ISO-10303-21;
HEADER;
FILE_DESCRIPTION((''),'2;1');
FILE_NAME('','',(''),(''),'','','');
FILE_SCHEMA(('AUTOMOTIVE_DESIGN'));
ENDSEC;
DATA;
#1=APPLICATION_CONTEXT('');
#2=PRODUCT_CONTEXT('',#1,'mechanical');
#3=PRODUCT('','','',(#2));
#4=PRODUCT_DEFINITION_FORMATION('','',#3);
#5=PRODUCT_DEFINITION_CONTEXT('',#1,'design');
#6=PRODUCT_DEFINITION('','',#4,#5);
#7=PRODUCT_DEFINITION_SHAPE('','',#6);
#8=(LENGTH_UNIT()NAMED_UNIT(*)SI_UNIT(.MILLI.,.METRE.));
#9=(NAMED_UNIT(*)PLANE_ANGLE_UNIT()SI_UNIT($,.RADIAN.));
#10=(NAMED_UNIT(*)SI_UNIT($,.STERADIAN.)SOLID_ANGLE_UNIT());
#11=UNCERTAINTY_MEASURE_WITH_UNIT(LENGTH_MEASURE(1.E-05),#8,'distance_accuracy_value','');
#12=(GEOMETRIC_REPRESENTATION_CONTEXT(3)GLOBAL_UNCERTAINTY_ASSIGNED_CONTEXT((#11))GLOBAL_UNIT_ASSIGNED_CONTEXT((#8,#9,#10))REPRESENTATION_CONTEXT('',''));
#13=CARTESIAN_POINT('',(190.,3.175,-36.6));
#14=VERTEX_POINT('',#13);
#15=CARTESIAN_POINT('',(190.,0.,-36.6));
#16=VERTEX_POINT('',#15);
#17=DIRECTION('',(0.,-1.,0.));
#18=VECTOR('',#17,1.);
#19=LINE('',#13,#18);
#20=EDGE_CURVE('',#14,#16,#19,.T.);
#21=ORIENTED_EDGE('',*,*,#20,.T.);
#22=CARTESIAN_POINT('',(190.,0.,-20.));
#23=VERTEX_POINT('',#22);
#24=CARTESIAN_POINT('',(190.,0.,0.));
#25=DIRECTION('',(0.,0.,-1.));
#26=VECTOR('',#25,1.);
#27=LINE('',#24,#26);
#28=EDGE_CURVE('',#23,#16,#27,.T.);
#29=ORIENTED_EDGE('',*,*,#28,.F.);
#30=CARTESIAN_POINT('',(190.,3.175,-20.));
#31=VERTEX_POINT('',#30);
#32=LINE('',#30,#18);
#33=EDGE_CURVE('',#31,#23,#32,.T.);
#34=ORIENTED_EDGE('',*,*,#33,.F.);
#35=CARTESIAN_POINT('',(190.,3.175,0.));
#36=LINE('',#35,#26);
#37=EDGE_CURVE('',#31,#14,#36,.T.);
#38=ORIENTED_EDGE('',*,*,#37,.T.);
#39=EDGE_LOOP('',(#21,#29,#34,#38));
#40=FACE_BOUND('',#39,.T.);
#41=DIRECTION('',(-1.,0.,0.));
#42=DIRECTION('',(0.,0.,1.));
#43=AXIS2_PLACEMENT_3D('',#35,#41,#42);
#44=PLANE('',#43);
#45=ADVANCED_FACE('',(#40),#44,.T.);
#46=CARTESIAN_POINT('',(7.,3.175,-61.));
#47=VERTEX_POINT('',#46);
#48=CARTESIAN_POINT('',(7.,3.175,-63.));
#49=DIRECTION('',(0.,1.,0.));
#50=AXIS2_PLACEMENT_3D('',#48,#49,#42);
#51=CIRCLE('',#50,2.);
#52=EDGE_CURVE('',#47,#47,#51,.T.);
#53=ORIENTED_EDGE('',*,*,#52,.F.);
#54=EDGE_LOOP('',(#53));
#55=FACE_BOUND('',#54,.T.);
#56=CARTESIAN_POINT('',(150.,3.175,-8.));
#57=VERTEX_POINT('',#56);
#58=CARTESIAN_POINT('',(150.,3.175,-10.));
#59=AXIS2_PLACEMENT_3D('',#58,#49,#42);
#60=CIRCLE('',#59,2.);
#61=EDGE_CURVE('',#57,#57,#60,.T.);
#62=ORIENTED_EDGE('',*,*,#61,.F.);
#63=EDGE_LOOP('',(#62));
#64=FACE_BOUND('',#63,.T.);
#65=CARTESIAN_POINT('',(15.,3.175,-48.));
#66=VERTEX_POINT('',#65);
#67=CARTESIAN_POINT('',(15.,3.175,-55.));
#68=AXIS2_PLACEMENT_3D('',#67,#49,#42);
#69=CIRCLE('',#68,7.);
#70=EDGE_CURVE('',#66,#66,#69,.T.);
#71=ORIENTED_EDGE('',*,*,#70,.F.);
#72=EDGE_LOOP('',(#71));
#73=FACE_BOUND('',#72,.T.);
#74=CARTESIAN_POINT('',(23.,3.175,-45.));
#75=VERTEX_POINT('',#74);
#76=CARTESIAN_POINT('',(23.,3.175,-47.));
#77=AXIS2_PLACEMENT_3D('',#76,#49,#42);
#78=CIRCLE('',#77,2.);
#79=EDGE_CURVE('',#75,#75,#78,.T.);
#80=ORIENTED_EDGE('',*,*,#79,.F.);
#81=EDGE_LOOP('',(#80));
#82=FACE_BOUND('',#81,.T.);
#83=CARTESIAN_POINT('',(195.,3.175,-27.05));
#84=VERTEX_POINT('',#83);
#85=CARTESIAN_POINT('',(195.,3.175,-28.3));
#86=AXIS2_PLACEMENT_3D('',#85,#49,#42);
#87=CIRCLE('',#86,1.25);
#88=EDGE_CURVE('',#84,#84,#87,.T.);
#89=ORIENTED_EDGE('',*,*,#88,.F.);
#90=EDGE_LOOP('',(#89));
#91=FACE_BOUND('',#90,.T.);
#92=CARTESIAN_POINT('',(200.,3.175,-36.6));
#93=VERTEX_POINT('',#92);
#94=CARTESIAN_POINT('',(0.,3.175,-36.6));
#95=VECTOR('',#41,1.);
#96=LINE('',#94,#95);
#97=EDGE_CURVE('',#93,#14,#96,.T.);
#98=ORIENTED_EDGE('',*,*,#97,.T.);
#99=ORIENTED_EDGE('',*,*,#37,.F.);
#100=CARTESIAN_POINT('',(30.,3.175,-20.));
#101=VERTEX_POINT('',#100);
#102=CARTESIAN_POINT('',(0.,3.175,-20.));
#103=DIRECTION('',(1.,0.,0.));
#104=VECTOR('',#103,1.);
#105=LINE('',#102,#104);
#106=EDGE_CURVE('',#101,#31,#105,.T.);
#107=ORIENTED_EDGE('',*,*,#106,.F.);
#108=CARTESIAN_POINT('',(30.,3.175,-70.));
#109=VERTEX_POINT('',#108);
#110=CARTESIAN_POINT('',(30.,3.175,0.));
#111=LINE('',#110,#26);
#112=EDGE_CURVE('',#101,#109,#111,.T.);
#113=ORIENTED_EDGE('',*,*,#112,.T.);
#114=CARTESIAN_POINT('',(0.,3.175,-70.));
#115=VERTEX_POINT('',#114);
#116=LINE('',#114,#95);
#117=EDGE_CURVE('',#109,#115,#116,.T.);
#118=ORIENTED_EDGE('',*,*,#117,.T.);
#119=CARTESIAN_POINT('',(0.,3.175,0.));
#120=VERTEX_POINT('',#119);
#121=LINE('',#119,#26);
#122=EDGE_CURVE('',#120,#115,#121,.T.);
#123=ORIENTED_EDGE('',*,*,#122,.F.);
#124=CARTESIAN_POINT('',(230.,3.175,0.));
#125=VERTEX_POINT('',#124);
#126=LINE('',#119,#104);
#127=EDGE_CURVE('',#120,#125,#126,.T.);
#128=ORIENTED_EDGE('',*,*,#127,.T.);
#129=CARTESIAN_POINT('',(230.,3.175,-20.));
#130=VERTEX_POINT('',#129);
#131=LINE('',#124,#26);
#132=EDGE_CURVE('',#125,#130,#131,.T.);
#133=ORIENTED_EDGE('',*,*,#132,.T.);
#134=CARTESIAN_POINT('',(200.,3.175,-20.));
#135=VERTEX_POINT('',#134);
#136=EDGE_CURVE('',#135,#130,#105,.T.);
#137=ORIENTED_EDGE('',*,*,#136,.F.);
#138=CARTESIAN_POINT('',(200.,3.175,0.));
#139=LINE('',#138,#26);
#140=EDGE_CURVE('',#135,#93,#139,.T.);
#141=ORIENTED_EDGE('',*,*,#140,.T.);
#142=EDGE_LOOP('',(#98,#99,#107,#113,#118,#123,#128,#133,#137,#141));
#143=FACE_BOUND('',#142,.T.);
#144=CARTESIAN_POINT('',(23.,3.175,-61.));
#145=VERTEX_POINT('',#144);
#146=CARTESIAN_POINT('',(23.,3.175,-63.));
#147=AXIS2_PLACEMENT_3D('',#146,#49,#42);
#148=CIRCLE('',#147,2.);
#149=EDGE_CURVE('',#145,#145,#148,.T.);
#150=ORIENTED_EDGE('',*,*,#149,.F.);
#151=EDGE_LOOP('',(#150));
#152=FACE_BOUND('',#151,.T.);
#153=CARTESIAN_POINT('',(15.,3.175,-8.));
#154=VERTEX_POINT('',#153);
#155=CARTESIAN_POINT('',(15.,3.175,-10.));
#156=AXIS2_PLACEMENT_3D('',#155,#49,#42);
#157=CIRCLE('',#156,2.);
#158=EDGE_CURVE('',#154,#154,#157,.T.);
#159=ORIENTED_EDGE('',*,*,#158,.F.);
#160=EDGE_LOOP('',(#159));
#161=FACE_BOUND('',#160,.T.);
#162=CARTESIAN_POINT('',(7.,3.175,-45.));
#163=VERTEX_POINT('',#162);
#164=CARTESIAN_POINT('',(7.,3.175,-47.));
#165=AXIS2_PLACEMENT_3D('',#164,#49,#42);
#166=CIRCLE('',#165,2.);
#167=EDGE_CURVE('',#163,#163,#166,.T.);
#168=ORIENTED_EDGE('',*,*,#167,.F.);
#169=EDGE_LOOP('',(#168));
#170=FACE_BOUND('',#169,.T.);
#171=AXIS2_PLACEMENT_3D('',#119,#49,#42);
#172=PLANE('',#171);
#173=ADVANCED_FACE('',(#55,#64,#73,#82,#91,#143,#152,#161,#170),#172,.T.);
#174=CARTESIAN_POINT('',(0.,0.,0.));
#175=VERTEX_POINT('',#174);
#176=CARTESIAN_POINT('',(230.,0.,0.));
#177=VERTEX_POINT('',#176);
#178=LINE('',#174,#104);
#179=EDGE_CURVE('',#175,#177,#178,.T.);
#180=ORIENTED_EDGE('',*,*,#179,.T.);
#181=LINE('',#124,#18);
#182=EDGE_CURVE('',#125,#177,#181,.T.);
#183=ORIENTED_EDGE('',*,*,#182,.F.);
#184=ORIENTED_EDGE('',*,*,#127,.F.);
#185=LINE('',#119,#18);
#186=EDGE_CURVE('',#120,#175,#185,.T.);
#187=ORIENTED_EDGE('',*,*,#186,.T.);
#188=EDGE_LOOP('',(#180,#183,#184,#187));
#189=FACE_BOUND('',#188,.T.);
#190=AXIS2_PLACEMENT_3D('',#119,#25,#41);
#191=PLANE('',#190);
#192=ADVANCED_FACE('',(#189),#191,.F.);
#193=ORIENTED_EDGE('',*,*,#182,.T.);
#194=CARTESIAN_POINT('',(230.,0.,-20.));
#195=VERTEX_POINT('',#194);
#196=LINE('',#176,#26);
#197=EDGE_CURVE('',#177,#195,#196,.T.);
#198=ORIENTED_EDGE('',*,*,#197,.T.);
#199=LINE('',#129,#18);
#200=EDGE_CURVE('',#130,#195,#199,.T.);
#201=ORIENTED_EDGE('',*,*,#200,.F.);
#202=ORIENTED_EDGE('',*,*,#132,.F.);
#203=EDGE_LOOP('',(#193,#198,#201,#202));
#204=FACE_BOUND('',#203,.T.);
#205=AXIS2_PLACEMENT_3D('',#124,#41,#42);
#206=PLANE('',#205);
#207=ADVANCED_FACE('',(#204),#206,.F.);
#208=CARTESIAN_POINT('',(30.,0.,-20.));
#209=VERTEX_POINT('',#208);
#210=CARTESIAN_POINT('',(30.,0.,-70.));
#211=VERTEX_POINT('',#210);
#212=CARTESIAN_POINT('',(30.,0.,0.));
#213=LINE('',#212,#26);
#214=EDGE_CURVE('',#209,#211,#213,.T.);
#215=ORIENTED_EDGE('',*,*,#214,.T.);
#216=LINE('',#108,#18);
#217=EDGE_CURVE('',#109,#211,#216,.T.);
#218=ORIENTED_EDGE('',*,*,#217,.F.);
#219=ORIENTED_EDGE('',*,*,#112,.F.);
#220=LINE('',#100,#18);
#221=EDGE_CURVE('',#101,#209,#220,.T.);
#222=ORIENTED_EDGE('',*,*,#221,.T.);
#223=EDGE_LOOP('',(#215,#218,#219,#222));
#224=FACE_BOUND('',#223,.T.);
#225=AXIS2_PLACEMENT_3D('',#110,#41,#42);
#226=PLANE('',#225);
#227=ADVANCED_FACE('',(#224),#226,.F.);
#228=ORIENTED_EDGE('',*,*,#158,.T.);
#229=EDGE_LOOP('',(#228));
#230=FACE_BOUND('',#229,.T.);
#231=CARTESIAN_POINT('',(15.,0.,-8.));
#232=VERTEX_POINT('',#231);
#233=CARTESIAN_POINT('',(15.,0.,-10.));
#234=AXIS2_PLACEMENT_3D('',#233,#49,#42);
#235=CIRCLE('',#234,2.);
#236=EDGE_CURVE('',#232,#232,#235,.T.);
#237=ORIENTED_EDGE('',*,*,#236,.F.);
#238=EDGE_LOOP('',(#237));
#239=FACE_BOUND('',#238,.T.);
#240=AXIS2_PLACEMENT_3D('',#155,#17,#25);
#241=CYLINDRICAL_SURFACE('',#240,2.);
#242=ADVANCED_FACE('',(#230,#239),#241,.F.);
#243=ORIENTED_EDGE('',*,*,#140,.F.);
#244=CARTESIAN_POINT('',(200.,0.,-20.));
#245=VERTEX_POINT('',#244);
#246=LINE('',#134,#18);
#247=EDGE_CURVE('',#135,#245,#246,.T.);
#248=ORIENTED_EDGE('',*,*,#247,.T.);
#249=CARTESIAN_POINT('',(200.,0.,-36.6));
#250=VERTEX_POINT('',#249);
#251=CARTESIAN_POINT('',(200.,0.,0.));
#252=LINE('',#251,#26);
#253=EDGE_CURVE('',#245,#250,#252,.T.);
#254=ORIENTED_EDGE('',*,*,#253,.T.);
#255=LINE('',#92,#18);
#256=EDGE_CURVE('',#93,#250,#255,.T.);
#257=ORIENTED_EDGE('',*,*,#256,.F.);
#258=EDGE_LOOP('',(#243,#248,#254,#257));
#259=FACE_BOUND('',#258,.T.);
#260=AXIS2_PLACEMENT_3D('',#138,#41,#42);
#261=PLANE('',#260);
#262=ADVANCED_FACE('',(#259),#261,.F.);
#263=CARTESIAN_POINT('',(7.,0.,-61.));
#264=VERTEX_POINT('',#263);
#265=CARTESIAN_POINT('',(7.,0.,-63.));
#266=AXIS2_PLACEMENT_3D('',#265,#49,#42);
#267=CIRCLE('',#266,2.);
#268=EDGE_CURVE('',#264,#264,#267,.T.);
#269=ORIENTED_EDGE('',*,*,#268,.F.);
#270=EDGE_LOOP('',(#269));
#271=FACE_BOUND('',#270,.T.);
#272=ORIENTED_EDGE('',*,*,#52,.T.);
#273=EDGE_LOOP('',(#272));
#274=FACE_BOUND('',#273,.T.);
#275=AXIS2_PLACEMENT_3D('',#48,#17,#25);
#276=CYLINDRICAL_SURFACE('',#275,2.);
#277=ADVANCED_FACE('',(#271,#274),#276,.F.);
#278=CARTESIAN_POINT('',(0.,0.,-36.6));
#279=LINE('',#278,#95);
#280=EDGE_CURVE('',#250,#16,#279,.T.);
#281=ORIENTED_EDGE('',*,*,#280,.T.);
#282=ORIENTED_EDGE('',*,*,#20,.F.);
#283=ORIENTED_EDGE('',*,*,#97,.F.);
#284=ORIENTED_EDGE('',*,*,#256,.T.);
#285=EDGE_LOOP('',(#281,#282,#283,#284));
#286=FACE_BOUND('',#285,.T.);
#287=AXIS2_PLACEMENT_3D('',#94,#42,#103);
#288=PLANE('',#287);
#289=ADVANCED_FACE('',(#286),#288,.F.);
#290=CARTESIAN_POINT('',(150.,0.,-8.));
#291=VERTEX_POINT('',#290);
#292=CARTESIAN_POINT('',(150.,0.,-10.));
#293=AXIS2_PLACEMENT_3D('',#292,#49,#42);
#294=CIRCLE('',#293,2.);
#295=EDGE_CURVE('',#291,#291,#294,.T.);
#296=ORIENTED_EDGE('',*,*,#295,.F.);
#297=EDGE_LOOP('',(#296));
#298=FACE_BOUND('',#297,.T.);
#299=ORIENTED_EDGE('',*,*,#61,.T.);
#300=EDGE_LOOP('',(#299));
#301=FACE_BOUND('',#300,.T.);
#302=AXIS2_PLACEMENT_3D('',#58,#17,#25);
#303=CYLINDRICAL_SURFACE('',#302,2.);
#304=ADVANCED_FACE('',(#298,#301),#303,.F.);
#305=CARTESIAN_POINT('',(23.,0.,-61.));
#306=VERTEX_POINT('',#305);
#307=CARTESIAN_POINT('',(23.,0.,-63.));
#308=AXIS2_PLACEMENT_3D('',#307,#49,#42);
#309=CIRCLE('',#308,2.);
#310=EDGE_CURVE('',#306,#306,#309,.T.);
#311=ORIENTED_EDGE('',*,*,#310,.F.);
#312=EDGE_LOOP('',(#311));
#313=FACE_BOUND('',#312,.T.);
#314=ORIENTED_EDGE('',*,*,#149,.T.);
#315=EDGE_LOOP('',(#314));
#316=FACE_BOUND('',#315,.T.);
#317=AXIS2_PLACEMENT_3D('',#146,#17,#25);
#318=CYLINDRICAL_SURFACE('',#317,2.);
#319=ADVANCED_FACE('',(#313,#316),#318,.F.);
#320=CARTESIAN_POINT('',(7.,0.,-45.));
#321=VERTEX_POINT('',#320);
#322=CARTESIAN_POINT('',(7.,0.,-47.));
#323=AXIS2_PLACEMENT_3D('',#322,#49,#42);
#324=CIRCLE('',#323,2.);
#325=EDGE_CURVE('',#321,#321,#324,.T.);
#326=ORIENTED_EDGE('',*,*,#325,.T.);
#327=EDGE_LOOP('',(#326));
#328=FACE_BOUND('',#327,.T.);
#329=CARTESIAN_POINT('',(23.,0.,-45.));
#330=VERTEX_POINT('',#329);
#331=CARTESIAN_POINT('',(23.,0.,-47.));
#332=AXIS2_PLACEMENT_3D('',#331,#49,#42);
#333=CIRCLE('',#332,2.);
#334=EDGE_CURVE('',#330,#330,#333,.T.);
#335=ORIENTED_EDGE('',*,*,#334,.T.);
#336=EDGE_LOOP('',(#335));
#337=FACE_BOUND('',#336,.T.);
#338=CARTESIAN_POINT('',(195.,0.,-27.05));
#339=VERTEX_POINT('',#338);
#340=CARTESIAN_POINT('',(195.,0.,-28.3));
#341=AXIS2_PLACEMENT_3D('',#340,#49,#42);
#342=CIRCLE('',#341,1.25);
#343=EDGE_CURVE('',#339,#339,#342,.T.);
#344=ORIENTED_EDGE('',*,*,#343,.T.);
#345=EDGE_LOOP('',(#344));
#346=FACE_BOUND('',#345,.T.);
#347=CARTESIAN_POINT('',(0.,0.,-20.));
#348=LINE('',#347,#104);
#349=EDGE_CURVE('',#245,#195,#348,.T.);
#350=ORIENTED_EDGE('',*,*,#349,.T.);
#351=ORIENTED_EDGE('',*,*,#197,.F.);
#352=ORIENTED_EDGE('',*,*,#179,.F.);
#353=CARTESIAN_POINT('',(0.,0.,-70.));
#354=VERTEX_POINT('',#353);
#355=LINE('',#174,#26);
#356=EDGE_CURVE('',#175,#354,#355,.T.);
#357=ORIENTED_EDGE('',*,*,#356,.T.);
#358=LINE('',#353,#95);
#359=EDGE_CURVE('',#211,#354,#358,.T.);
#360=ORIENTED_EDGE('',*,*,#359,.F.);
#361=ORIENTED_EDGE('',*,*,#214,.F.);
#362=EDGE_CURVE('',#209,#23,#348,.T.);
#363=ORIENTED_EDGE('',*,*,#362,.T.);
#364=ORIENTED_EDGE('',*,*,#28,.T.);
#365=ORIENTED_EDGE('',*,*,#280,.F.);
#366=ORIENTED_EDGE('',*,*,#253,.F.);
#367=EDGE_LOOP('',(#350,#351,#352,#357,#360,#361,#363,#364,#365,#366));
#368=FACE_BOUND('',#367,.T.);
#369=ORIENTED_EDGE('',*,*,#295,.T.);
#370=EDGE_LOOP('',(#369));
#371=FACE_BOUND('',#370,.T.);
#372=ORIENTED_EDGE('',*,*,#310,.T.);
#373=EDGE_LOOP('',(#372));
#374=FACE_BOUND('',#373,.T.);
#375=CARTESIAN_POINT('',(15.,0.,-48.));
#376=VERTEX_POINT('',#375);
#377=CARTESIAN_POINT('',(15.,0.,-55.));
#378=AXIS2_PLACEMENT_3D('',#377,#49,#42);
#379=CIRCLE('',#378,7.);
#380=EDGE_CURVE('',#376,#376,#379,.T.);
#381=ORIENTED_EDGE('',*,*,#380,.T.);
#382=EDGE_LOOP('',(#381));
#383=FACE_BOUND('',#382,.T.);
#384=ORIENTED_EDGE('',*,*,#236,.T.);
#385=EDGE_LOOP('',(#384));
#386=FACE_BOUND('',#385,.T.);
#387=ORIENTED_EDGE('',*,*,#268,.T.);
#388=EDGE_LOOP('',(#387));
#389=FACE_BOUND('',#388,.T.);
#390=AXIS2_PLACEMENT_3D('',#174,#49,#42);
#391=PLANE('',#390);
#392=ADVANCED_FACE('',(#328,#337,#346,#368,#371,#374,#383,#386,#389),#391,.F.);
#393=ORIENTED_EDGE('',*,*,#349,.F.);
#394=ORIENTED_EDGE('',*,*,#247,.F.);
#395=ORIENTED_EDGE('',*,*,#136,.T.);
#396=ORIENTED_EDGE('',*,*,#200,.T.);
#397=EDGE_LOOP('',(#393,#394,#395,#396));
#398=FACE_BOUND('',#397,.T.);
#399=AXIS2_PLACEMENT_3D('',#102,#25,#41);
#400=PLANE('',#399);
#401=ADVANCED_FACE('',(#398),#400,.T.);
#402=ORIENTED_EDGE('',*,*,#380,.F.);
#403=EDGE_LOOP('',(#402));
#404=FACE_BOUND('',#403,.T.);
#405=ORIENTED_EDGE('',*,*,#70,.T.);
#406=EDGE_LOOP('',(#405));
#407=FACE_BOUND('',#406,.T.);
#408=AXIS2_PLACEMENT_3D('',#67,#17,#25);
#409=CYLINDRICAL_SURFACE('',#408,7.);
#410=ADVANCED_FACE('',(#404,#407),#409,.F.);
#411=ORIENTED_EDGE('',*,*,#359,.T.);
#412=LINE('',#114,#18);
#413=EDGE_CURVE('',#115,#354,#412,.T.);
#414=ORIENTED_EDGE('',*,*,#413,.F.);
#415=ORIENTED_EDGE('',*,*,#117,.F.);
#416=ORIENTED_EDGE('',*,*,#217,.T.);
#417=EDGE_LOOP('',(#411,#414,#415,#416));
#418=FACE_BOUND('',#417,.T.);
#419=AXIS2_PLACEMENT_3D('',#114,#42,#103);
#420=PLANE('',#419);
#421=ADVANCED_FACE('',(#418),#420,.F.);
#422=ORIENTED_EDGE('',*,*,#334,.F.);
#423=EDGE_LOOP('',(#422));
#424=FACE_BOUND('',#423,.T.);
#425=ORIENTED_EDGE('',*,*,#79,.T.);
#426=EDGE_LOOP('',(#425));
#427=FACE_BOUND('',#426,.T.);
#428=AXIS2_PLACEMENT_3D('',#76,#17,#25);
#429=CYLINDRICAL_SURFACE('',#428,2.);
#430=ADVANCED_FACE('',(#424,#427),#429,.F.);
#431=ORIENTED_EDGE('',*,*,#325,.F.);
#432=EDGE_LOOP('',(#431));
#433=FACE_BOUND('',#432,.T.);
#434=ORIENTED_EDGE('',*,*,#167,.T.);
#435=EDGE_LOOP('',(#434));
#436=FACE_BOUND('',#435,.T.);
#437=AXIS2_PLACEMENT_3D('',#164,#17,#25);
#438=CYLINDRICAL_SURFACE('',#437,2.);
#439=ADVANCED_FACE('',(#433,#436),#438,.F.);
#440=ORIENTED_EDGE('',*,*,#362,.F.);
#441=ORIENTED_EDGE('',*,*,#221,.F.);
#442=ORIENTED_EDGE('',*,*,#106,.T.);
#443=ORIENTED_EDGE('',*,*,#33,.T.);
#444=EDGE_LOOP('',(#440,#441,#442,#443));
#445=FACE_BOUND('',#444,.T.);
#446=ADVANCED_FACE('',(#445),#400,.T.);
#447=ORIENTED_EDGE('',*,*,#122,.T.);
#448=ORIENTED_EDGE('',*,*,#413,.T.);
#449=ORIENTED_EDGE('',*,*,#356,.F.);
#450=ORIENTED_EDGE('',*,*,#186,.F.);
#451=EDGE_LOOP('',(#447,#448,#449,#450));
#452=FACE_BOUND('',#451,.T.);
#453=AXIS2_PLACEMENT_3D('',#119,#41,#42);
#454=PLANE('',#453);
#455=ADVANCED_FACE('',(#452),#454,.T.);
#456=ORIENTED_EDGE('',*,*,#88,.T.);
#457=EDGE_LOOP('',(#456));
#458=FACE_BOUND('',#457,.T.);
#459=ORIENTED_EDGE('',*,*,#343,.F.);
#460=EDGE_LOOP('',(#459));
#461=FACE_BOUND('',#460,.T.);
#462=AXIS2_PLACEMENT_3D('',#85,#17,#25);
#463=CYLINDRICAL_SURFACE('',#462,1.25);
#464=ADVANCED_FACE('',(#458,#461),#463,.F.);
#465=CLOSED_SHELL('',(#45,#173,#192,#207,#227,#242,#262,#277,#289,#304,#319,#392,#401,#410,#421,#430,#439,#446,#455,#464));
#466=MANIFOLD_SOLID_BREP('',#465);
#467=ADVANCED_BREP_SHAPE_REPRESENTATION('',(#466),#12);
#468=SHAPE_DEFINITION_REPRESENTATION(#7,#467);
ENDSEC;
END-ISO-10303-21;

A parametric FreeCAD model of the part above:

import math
import FreeCAD as App
import Part
import Sketcher


def add_polygon(sketch, points):
    """Adds a closed chain of lines whose ends are joined by coincident constraints."""
    first, n = sketch.GeometryCount, len(points)
    for a, b in zip(points, points[1:] + points[:1]):
        sketch.addGeometry(Part.LineSegment(App.Vector(*a, 0), App.Vector(*b, 0)), False)
    for i in range(n):
        sketch.addConstraint(Sketcher.Constraint("Coincident", first + i, 2, first + (i + 1) % n, 1))

doc = App.newDocument("Part")
body = doc.addObject("PartDesign::Body", "Body")

sketch1 = doc.addObject("Sketcher::SketchObject", "Sketch")
body.addObject(sketch1)
sketch1.AttachmentSupport = (doc.XZ_Plane, [""])
sketch1.MapMode = "FlatFace"
add_polygon(sketch1, [(0, 0), (230, 0), (230, -20), (200, -20), (200, -36.6), (190, -36.6), (190, -20), (30, -20), (30, -70), (0, -70)])
sketch1.addGeometry(Part.Circle(App.Vector(15, -10, 0), App.Vector(0, 0, 1), 2), False)
sketch1.addGeometry(Part.Circle(App.Vector(150, -10, 0), App.Vector(0, 0, 1), 2), False)
sketch1.addGeometry(Part.Circle(App.Vector(195, -28.3, 0), App.Vector(0, 0, 1), 1.2), False)
sketch1.addGeometry(Part.Circle(App.Vector(7, -47, 0), App.Vector(0, 0, 1), 2), False)
sketch1.addGeometry(Part.Circle(App.Vector(23, -47, 0), App.Vector(0, 0, 1), 2), False)
sketch1.addGeometry(Part.ArcOfCircle(Part.Circle(App.Vector(15, -55, 0), App.Vector(0, 0, 1), 7), math.radians(-90), math.radians(225)), False)
sketch1.addGeometry(Part.ArcOfCircle(Part.Circle(App.Vector(15, -55, 0), App.Vector(0, 0, 1), 7), math.radians(-135), math.radians(-90)), False)
sketch1.addGeometry(Part.Circle(App.Vector(7, -63, 0), App.Vector(0, 0, 1), 2), False)
sketch1.addGeometry(Part.Circle(App.Vector(23, -63, 0), App.Vector(0, 0, 1), 2), False)
sketch1.addConstraint(Sketcher.Constraint("Tangent", 15, 1, 16, 2))
sketch1.addConstraint(Sketcher.Constraint("Coincident", 16, 1, 15, 2))
sketch1.addConstraint(Sketcher.Constraint("Horizontal", 0))
sketch1.addConstraint(Sketcher.Constraint("Vertical", 1))
sketch1.addConstraint(Sketcher.Constraint("Horizontal", 2))
sketch1.addConstraint(Sketcher.Constraint("Vertical", 3))
sketch1.addConstraint(Sketcher.Constraint("Horizontal", 4))
sketch1.addConstraint(Sketcher.Constraint("Vertical", 5))
sketch1.addConstraint(Sketcher.Constraint("Horizontal", 6))
sketch1.addConstraint(Sketcher.Constraint("Vertical", 7))
sketch1.addConstraint(Sketcher.Constraint("Horizontal", 8))
sketch1.addConstraint(Sketcher.Constraint("Vertical", 9))
sketch1.addConstraint(Sketcher.Constraint("Coincident", 9, 2, -1, 1))
sketch1.addConstraint(Sketcher.Constraint("Equal", 10, 11))
sketch1.addConstraint(Sketcher.Constraint("Equal", 11, 13))
sketch1.addConstraint(Sketcher.Constraint("Equal", 13, 14))
sketch1.addConstraint(Sketcher.Constraint("Equal", 14, 17))
sketch1.addConstraint(Sketcher.Constraint("Equal", 17, 18))
sketch1.addConstraint(Sketcher.Constraint("Horizontal", 10, 3, 11, 3))
sketch1.addConstraint(Sketcher.Constraint("Horizontal", 13, 3, 14, 3))
sketch1.addConstraint(Sketcher.Constraint("Horizontal", 17, 3, 18, 3))
sketch1.addConstraint(Sketcher.Constraint("Horizontal", 2, 2, 5, 2))
sketch1.addConstraint(Sketcher.Constraint("Vertical", 10, 3, 15, 3))
sketch1.addConstraint(Sketcher.Constraint("Vertical", 13, 3, 17, 3))
sketch1.addConstraint(Sketcher.Constraint("Vertical", 14, 3, 18, 3))
sketch1.addConstraint(Sketcher.Constraint("Vertical", 16, 3, 15, 1))
sketch1.addConstraint(Sketcher.Constraint("Equal", 2, 8))
sketch1.addConstraint(Sketcher.Constraint("Diameter", 10, 4.0))
sketch1.addConstraint(Sketcher.Constraint("Radius", 15, 7.0))
sketch1.addConstraint(Sketcher.Constraint("Diameter", 12, 2.5))
sketch1.addConstraint(Sketcher.Constraint("DistanceX", 0, 1, 0, 2, 230.0))
sketch1.addConstraint(Sketcher.Constraint("DistanceX", 2, 2, 2, 1, 30.0))
sketch1.addConstraint(Sketcher.Constraint("DistanceX", 4, 2, 4, 1, 10.0))
sketch1.addConstraint(Sketcher.Constraint("DistanceY", 1, 2, 1, 1, 20.0))
sketch1.addConstraint(Sketcher.Constraint("DistanceY", 7, 2, 7, 1, 50.0))
sketch1.addConstraint(Sketcher.Constraint("DistanceY", 3, 2, 3, 1, 16.6))
sketch1.addConstraint(Sketcher.Constraint("DistanceX", -1, 1, 10, 3, 15.0))
sketch1.addConstraint(Sketcher.Constraint("DistanceY", 10, 3, -1, 1, 10.0))
sketch1.addConstraint(Sketcher.Constraint("DistanceX", -1, 1, 11, 3, 150.0))
sketch1.addConstraint(Sketcher.Constraint("DistanceX", -1, 1, 12, 3, 195.0))
sketch1.addConstraint(Sketcher.Constraint("DistanceX", -1, 1, 13, 3, 7.0))
sketch1.addConstraint(Sketcher.Constraint("DistanceY", 13, 3, -1, 1, 47.0))
sketch1.addConstraint(Sketcher.Constraint("DistanceX", -1, 1, 14, 3, 23.0))
sketch1.addConstraint(Sketcher.Constraint("DistanceY", 15, 3, -1, 1, 55.0))
sketch1.addConstraint(Sketcher.Constraint("DistanceY", 17, 3, -1, 1, 63.0))
sketch1.addConstraint(Sketcher.Constraint("DistanceY", 12, 3, -1, 1, 28.3))
sketch1.addConstraint(Sketcher.Constraint("DistanceX", -1, 1, 16, 1, 10.050253))
pad1 = doc.addObject("PartDesign::Pad", "Pad")
body.addObject(pad1)
pad1.Profile = sketch1
pad1.Length = 3.175
pad1.Reversed = True

doc.recompute()
